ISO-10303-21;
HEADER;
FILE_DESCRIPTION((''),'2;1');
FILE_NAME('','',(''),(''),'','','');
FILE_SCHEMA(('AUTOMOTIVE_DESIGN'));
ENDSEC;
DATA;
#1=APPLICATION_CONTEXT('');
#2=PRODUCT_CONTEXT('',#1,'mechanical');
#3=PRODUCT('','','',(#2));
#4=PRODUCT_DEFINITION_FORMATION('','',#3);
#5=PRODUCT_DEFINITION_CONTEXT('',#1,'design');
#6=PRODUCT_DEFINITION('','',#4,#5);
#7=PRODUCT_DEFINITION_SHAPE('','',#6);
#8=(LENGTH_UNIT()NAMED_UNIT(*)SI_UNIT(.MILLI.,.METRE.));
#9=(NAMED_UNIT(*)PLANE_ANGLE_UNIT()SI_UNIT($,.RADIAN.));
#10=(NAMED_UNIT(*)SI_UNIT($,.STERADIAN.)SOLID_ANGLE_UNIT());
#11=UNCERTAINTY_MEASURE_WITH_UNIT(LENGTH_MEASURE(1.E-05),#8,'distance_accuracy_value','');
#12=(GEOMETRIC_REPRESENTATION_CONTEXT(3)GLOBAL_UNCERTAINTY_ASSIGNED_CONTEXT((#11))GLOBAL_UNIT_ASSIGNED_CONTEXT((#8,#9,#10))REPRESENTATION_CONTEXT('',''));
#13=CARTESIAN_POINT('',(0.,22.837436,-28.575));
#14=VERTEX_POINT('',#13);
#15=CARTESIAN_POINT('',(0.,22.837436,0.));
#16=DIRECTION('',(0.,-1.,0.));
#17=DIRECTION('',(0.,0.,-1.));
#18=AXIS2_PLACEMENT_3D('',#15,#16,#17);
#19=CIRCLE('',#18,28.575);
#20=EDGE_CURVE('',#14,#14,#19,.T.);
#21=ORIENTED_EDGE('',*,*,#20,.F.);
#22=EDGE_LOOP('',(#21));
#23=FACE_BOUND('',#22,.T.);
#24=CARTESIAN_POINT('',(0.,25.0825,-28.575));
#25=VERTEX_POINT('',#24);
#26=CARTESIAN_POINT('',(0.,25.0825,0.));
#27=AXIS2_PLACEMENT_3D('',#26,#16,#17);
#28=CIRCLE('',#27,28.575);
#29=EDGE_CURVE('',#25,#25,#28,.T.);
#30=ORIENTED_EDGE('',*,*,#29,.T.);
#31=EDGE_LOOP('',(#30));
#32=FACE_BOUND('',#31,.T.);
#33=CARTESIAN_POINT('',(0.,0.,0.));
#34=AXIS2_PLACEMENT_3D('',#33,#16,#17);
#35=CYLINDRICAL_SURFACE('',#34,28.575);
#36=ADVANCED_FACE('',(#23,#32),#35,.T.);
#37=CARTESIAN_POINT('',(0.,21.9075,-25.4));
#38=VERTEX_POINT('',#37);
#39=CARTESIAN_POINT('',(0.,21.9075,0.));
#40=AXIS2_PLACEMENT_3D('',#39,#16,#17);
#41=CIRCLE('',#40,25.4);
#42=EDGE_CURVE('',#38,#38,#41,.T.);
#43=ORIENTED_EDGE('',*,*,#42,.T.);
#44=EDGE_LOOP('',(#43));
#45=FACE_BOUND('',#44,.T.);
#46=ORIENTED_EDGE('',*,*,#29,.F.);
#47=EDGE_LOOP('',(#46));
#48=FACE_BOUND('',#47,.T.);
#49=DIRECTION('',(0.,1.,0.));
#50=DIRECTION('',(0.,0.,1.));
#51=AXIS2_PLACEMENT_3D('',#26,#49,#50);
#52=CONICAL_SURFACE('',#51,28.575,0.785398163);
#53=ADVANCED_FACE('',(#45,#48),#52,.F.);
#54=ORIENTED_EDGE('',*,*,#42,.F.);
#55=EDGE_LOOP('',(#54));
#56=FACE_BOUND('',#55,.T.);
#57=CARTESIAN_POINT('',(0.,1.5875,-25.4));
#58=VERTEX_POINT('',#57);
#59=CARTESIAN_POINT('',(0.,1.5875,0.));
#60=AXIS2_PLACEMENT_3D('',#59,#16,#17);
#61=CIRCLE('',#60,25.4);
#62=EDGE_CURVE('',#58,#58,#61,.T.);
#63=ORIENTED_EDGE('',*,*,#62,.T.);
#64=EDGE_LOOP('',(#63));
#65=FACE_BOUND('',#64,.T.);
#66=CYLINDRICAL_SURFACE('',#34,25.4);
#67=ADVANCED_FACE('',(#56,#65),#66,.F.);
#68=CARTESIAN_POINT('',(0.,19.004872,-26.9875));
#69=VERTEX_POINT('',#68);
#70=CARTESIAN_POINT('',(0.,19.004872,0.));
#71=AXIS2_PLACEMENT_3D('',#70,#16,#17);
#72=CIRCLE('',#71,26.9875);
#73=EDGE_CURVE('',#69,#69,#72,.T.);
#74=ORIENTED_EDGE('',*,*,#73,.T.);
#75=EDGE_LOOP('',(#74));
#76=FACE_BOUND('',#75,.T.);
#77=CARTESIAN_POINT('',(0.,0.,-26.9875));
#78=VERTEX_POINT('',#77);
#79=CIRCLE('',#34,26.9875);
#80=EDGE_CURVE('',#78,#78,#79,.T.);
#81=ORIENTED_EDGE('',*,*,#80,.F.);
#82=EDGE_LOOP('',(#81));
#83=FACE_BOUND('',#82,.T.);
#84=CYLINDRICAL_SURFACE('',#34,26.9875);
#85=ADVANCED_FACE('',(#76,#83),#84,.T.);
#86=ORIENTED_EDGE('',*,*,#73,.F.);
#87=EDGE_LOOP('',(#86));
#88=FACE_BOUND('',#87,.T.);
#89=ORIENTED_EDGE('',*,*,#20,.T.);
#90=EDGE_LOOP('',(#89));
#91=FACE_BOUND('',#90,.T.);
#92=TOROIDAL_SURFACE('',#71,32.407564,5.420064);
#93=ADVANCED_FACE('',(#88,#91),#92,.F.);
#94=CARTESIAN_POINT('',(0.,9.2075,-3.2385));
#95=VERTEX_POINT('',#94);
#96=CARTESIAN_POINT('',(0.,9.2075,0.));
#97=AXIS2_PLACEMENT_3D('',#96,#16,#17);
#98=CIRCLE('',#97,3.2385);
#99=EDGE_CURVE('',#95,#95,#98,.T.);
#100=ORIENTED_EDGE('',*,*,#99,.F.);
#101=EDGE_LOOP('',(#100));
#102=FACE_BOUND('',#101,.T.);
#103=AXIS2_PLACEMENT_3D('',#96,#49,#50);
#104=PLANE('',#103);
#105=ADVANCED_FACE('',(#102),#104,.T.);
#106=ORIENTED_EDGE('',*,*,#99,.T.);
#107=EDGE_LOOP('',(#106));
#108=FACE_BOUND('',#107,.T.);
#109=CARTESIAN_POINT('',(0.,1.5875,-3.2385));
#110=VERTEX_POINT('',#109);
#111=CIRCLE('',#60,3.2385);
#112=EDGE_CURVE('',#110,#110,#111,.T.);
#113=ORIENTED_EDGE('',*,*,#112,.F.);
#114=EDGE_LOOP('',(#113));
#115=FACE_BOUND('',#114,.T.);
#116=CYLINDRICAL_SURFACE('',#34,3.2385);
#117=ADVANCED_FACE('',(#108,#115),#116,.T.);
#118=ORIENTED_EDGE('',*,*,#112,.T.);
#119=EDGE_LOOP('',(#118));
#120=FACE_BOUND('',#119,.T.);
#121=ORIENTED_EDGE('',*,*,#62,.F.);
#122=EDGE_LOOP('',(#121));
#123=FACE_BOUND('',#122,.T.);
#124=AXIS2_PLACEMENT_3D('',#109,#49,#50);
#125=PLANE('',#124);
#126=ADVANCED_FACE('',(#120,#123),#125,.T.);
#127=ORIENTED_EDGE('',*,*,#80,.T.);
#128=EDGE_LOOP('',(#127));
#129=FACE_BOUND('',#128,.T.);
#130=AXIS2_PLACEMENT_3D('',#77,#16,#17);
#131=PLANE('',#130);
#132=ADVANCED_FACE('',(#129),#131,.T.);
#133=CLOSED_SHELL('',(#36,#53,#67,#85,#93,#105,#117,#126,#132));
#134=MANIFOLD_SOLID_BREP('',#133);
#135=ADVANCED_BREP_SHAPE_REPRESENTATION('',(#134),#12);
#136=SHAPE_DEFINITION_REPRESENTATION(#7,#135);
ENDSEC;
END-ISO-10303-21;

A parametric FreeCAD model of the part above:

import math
import FreeCAD as App
import Part
import Sketcher
from FreeCAD import Vector
Q = App.Units.Quantity

doc = App.newDocument("Part")
params = doc.addObject("Spreadsheet::Sheet", "Params")
for row, (alias, value) in enumerate([
    ("sketch1_width", "0.8 in"),
    ("sketch1_width2", "0.3 in"),
    ("sketch1_height", "1.0625 in"),
    ("revolution_angle", "360 deg"),
], start=1):
    params.set(f"A{row}", alias)
    params.set(f"B{row}", "=" + value)
    params.setAlias(f"B{row}", alias)

body = doc.addObject("PartDesign::Body", "Body")

# Sketch on YZ plane
sketch1 = doc.addObject("Sketcher::SketchObject", "Sketch")
body.addObject(sketch1)
sketch1.AttachmentSupport = (doc.YZ_Plane, [""])
sketch1.MapMode = "FlatFace"
sketch1.addGeometry([
    Part.LineSegment(Vector(9.2, 0, 0), Vector(0, 0, 0)),  # 0
    Part.LineSegment(Vector(0, 0, 0), Vector(0, -27, 0)),  # 1
    Part.LineSegment(Vector(0, -27, 0), Vector(19, -27, 0)),  # 2
    Part.ArcOfCircle(Part.Circle(Vector(19, -32.4, 0), Vector(0, 0, 1), 5.4), math.radians(45), math.radians(90)),  # 3
    Part.LineSegment(Vector(22.8, -28.6, 0), Vector(25.1, -28.6, 0)),  # 4
    Part.LineSegment(Vector(25.1, -28.6, 0), Vector(21.9, -25.4, 0)),  # 5
    Part.LineSegment(Vector(21.9, -25.4, 0), Vector(1.6, -25.4, 0)),  # 6
    Part.LineSegment(Vector(1.6, -25.4, 0), Vector(1.6, -3.2, 0)),  # 7
    Part.LineSegment(Vector(1.6, -3.2, 0), Vector(9.2, -3.2, 0)),  # 8
    Part.LineSegment(Vector(9.2, -3.2, 0), Vector(9.2, 0, 0)),  # 9
], False)
sketch1.addConstraint([
    Sketcher.Constraint("Coincident", 0, 2, 1, 1),
    Sketcher.Constraint("Coincident", 1, 2, 2, 1),
    Sketcher.Constraint("Tangent", 2, 2, 3, 2),
    Sketcher.Constraint("Coincident", 3, 1, 4, 1),
    Sketcher.Constraint("Coincident", 4, 2, 5, 1),
    Sketcher.Constraint("Coincident", 5, 2, 6, 1),
    Sketcher.Constraint("Coincident", 6, 2, 7, 1),
    Sketcher.Constraint("Coincident", 7, 2, 8, 1),
    Sketcher.Constraint("Coincident", 8, 2, 9, 1),
    Sketcher.Constraint("Coincident", 9, 2, 0, 1),
    Sketcher.Constraint("Horizontal", 0),
    Sketcher.Constraint("Vertical", 1),
    Sketcher.Constraint("Horizontal", 2),
    Sketcher.Constraint("Horizontal", 4),
    Sketcher.Constraint("Horizontal", 6),
    Sketcher.Constraint("Vertical", 7),
    Sketcher.Constraint("Horizontal", 8),
    Sketcher.Constraint("Vertical", 9),
    Sketcher.Constraint("Coincident", 0, 2, -1, 1),
    Sketcher.Constraint("DistanceX", 6, 2, 6, 1, Q("0.8 in")),
    Sketcher.Constraint("DistanceX", 8, 1, 8, 2, Q("0.3 in")),
    Sketcher.Constraint("DistanceY", 5, 2, -1, 1, Q("1 in")),
    Sketcher.Constraint("Angle", 5, Q("135 deg")),
    Sketcher.Constraint("DistanceY", 1, 2, 1, 1, Q("1.0625 in")),
    Sketcher.Constraint("DistanceX", 0, 2, 0, 1, Q("0.3625 in")),
    Sketcher.Constraint("DistanceY", 7, 1, 7, 2, Q("0.8725 in")),
    Sketcher.Constraint("DistanceY", 3, 1, -1, 1, Q("1.125 in")),
    Sketcher.Constraint("Radius", 3, Q("5.420064 mm")),
    Sketcher.Constraint("DistanceX", 2, 1, 2, 2, Q("19.004872 mm")),
])
sketch1.setExpression("Constraints[19]", "Params.sketch1_width")
sketch1.setExpression("Constraints[20]", "Params.sketch1_width2")
sketch1.setExpression("Constraints[23]", "Params.sketch1_height")
revolution = doc.addObject("PartDesign::Revolution", "Revolution")
body.addObject(revolution)
revolution.Profile = sketch1
revolution.ReferenceAxis = (sketch1, ["H_Axis"])
revolution.setExpression("Angle", "Params.revolution_angle")

doc.recompute()
